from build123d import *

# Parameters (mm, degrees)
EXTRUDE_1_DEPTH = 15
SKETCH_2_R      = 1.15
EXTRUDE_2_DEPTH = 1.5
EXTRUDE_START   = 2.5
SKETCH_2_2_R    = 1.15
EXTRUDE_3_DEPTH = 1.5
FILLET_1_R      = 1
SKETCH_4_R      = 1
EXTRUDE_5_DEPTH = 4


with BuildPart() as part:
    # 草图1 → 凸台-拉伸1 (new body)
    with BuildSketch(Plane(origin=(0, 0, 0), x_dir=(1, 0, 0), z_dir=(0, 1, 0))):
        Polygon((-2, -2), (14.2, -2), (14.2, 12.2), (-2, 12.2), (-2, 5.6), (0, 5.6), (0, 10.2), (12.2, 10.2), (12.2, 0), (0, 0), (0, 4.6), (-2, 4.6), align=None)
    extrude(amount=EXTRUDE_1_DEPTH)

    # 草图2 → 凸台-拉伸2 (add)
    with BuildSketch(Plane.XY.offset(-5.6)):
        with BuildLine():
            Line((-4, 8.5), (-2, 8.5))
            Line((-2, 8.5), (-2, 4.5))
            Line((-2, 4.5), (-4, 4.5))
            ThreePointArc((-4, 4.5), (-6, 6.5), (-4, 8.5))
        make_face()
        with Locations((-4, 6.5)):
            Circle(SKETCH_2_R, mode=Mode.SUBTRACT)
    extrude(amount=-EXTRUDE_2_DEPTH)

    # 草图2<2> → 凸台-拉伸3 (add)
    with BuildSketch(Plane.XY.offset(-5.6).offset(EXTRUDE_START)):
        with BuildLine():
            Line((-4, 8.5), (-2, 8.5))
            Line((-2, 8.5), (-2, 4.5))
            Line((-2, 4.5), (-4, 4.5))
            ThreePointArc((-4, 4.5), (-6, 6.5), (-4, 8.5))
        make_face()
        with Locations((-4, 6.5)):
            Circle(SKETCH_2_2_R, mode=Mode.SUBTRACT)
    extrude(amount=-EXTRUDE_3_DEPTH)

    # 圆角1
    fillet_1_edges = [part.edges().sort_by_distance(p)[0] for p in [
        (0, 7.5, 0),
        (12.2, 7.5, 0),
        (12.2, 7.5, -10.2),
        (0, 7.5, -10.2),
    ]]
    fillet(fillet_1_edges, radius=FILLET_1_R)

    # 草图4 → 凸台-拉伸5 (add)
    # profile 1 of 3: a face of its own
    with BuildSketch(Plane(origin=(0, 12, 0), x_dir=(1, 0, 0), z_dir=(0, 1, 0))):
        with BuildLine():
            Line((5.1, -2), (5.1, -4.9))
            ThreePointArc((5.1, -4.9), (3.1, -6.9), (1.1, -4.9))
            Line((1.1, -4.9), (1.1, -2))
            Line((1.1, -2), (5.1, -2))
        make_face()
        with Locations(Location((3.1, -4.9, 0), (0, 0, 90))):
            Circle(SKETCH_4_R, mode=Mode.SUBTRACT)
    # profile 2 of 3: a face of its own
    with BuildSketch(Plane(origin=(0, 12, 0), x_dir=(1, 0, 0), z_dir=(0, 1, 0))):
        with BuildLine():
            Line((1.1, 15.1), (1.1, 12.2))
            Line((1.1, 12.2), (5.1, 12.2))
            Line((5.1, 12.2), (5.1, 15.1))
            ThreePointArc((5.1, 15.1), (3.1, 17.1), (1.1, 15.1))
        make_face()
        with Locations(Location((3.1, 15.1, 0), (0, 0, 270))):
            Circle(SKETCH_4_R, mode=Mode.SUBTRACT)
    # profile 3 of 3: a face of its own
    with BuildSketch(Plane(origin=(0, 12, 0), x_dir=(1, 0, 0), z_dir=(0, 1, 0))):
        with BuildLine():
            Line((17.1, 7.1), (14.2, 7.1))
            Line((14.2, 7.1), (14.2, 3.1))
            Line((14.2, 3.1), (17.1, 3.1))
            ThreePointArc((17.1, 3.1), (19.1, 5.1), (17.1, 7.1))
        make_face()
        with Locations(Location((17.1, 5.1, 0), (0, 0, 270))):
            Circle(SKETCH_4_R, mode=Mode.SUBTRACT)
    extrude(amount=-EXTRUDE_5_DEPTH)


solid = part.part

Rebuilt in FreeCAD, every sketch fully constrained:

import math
import FreeCAD as App
import Part
import Sketcher
from FreeCAD import Vector
Q = App.Units.Quantity


def edges_at(feature, points):
    """Names of the edges that pass closest to the given points."""
    edges = feature.Shape.Edges
    near = lambda p: min(range(len(edges)), key=lambda i: edges[i].distToShape(Part.Vertex(*p))[0])
    return sorted({f"Edge{near(p) + 1}" for p in points})


def add_polygon(sketch, points):
    """Adds a closed chain of lines whose ends are joined by coincident constraints."""
    first, n = sketch.GeometryCount, len(points)
    for a, b in zip(points, points[1:] + points[:1]):
        sketch.addGeometry(Part.LineSegment(App.Vector(*a, 0), App.Vector(*b, 0)), False)
    for i in range(n):
        sketch.addConstraint(Sketcher.Constraint("Coincident", first + i, 2, first + (i + 1) % n, 1))

doc = App.newDocument("Part")
params = doc.addObject("Spreadsheet::Sheet", "Params")
for row, (alias, value) in enumerate([
    ("sketch1_width", "2 mm"),
    ("sketch1_width2", "16.2 mm"),
    ("sketch1_width3", "12.2 mm"),
    ("sketch1_height", "14.2 mm"),
    ("sketch1_height2", "6.6 mm"),
    ("pad1_length", "15 mm"),
    ("sketch2_radius", "2 mm"),
    ("sketch2_diameter", "2.3 mm"),
    ("sketch2_width", "2 mm"),
    ("pad2_length", "1.5 mm"),
    ("sketch3_radius", "2 mm"),
    ("sketch3_diameter", "2.3 mm"),
    ("sketch3_width", "2 mm"),
    ("pad3_length", "1.5 mm"),
    ("fillet_radius", "1 mm"),
    ("sketch4_diameter", "2 mm"),
    ("sketch4_radius", "2 mm"),
    ("sketch4_width", "2.9 mm"),
    ("pad4_length", "4 mm"),
], start=1):
    params.set(f"A{row}", alias)
    params.set(f"B{row}", "=" + value)
    params.setAlias(f"B{row}", alias)

body = doc.addObject("PartDesign::Body", "Body")

# Sketch on XZ plane
sketch1 = body.newObject("Sketcher::SketchObject", "Sketch")
sketch1.AttachmentSupport = (doc.getObject("XZ_Plane"), [""])
sketch1.MapMode = "FlatFace"
add_polygon(sketch1, [(-2, 2), (14.2, 2), (14.2, -12.2), (-2, -12.2), (-2, -5.6), (0, -5.6), (0, -10.2), (12.2, -10.2), (12.2, 0), (0, 0), (0, -4.6), (-2, -4.6)])  # lines 0-11
sketch1.addConstraint([
    Sketcher.Constraint("Horizontal", 0),
    Sketcher.Constraint("Vertical", 1),
    Sketcher.Constraint("Horizontal", 2),
    Sketcher.Constraint("Vertical", 3),
    Sketcher.Constraint("Horizontal", 4),
    Sketcher.Constraint("Vertical", 5),
    Sketcher.Constraint("Horizontal", 6),
    Sketcher.Constraint("Vertical", 7),
    Sketcher.Constraint("Horizontal", 8),
    Sketcher.Constraint("Vertical", 9),
    Sketcher.Constraint("Horizontal", 10),
    Sketcher.Constraint("Vertical", 11),
    Sketcher.Constraint("Coincident", 8, 2, -1, 1),
    Sketcher.Constraint("PointOnObject", 4, 2, -2),
    Sketcher.Constraint("Vertical", 3, 2, 10, 2),
    Sketcher.Constraint("Equal", 5, 9),
    Sketcher.Constraint("Equal", 3, 11),
    Sketcher.Constraint("DistanceX", 4, 1, 4, 2, Q("2 mm")),
    Sketcher.Constraint("DistanceX", 0, 1, 0, 2, Q("16.2 mm")),
    Sketcher.Constraint("DistanceX", 6, 1, 6, 2, Q("12.2 mm")),
    Sketcher.Constraint("DistanceY", 1, 2, 1, 1, Q("14.2 mm")),
    Sketcher.Constraint("DistanceY", 3, 1, 3, 2, Q("6.6 mm")),
    Sketcher.Constraint("DistanceY", 5, 2, 5, 1, Q("4.6 mm")),
])
sketch1.setExpression("Constraints[29]", "Params.sketch1_width")
sketch1.setExpression("Constraints[30]", "Params.sketch1_width2")
sketch1.setExpression("Constraints[31]", "Params.sketch1_width3")
sketch1.setExpression("Constraints[32]", "Params.sketch1_height")
sketch1.setExpression("Constraints[33]", "Params.sketch1_height2")
pad1 = body.newObject("PartDesign::Pad", "Pad")
pad1.Profile = sketch1
pad1.setExpression("Length", "Params.pad1_length")
pad1.Reversed = True

# Sketch on XY plane
sketch2 = body.newObject("Sketcher::SketchObject", "Sketch001")
sketch2.AttachmentSupport = (doc.getObject("XY_Plane"), [""])
sketch2.MapMode = "FlatFace"
sketch2.AttachmentOffset = App.Placement(Vector(0, 0, -5.6), App.Rotation())
sketch2.addGeometry([
    Part.LineSegment(Vector(-2, 8.5, 0), Vector(-4, 8.5, 0)),  # 0
    Part.ArcOfCircle(Part.Circle(Vector(-4, 6.5, 0), Vector(0, 0, 1), 2), math.radians(90), math.radians(270)),  # 1
    Part.LineSegment(Vector(-4, 4.5, 0), Vector(-2, 4.5, 0)),  # 2
    Part.LineSegment(Vector(-2, 4.5, 0), Vector(-2, 8.5, 0)),  # 3
    Part.Circle(Vector(-4, 6.5, 0), Vector(0, 0, 1), 1.1),  # 4
], False)
sketch2.addConstraint([
    Sketcher.Constraint("Tangent", 0, 2, 1, 1),
    Sketcher.Constraint("Tangent", 1, 2, 2, 1),
    Sketcher.Constraint("Coincident", 2, 2, 3, 1),
    Sketcher.Constraint("Coincident", 3, 2, 0, 1),
    Sketcher.Constraint("Horizontal", 0),
    Sketcher.Constraint("Horizontal", 2),
    Sketcher.Constraint("Vertical", 3),
    Sketcher.Constraint("Coincident", 4, 3, 1, 3),
    Sketcher.Constraint("Radius", 1, Q("2 mm")),
    Sketcher.Constraint("Diameter", 4, Q("2.3 mm")),
    Sketcher.Constraint("DistanceX", 0, 2, 0, 1, Q("2 mm")),
    Sketcher.Constraint("DistanceX", 1, 3, -1, 1, Q("4 mm")),
    Sketcher.Constraint("DistanceY", -1, 1, 1, 3, Q("6.5 mm")),
])
sketch2.setExpression("Constraints[8]", "Params.sketch2_radius")
sketch2.setExpression("Constraints[9]", "Params.sketch2_diameter")
sketch2.setExpression("Constraints[10]", "Params.sketch2_width")
pad2 = body.newObject("PartDesign::Pad", "Pad001")
pad2.Profile = sketch2
pad2.setExpression("Length", "Params.pad2_length")
pad2.Reversed = True

# Sketch on XY plane
sketch3 = body.newObject("Sketcher::SketchObject", "Sketch002")
sketch3.AttachmentSupport = (doc.getObject("XY_Plane"), [""])
sketch3.MapMode = "FlatFace"
sketch3.AttachmentOffset = App.Placement(Vector(0, 0, -3.1), App.Rotation())
sketch3.addGeometry([
    Part.LineSegment(Vector(-2, 8.5, 0), Vector(-4, 8.5, 0)),  # 0
    Part.ArcOfCircle(Part.Circle(Vector(-4, 6.5, 0), Vector(0, 0, 1), 2), math.radians(90), math.radians(270)),  # 1
    Part.LineSegment(Vector(-4, 4.5, 0), Vector(-2, 4.5, 0)),  # 2
    Part.LineSegment(Vector(-2, 4.5, 0), Vector(-2, 8.5, 0)),  # 3
    Part.Circle(Vector(-4, 6.5, 0), Vector(0, 0, 1), 1.1),  # 4
], False)
sketch3.addConstraint([
    Sketcher.Constraint("Tangent", 0, 2, 1, 1),
    Sketcher.Constraint("Tangent", 1, 2, 2, 1),
    Sketcher.Constraint("Coincident", 2, 2, 3, 1),
    Sketcher.Constraint("Coincident", 3, 2, 0, 1),
    Sketcher.Constraint("Horizontal", 0),
    Sketcher.Constraint("Horizontal", 2),
    Sketcher.Constraint("Vertical", 3),
    Sketcher.Constraint("Coincident", 4, 3, 1, 3),
    Sketcher.Constraint("Radius", 1, Q("2 mm")),
    Sketcher.Constraint("Diameter", 4, Q("2.3 mm")),
    Sketcher.Constraint("DistanceX", 0, 2, 0, 1, Q("2 mm")),
    Sketcher.Constraint("DistanceX", 1, 3, -1, 1, Q("4 mm")),
    Sketcher.Constraint("DistanceY", -1, 1, 1, 3, Q("6.5 mm")),
])
sketch3.setExpression("Constraints[8]", "Params.sketch3_radius")
sketch3.setExpression("Constraints[9]", "Params.sketch3_diameter")
sketch3.setExpression("Constraints[10]", "Params.sketch3_width")
pad3 = body.newObject("PartDesign::Pad", "Pad002")
pad3.Profile = sketch3
pad3.setExpression("Length", "Params.pad3_length")
pad3.Reversed = True
doc.recompute()

fillet = body.newObject("PartDesign::Fillet", "Fillet")
fillet.Base = (pad3, edges_at(pad3, [
    (0, 7.5, 0),
    (12.2, 7.5, 0),
    (12.2, 7.5, -10.2),
    (0, 7.5, -10.2),
]))
fillet.setExpression("Radius", "Params.fillet_radius")

# Sketch on XZ plane
sketch4 = body.newObject("Sketcher::SketchObject", "Sketch003")
sketch4.AttachmentSupport = (doc.getObject("XZ_Plane"), [""])
sketch4.MapMode = "FlatFace"
sketch4.AttachmentOffset = App.Placement(Vector(0, 0, -12), App.Rotation())
sketch4.addGeometry([
    Part.LineSegment(Vector(5.1, 4.9, 0), Vector(5.1, 2, 0)),  # 0
    Part.LineSegment(Vector(5.1, 2, 0), Vector(1.1, 2, 0)),  # 1
    Part.LineSegment(Vector(1.1, 2, 0), Vector(1.1, 4.9, 0)),  # 2
    Part.ArcOfCircle(Part.Circle(Vector(3.1, 4.9, 0), Vector(0, 0, 1), 2), math.radians(0), math.radians(180)),  # 3
    Part.Circle(Vector(3.1, 4.9, 0), Vector(0, 0, 1), 1),  # 4
    Part.LineSegment(Vector(1.1, -15.1, 0), Vector(1.1, -12.2, 0)),  # 5
    Part.LineSegment(Vector(1.1, -12.2, 0), Vector(5.1, -12.2, 0)),  # 6
    Part.LineSegment(Vector(5.1, -12.2, 0), Vector(5.1, -15.1, 0)),  # 7
    Part.ArcOfCircle(Part.Circle(Vector(3.1, -15.1, 0), Vector(0, 0, 1), 2), math.radians(180), math.radians(360)),  # 8
    Part.Circle(Vector(3.1, -15.1, 0), Vector(0, 0, 1), 1),  # 9
    Part.LineSegment(Vector(17.1, -7.1, 0), Vector(14.2, -7.1, 0)),  # 10
    Part.LineSegment(Vector(14.2, -7.1, 0), Vector(14.2, -3.1, 0)),  # 11
    Part.LineSegment(Vector(14.2, -3.1, 0), Vector(17.1, -3.1, 0)),  # 12
    Part.ArcOfCircle(Part.Circle(Vector(17.1, -5.1, 0), Vector(0, 0, 1), 2), math.radians(-90), math.radians(90)),  # 13
    Part.Circle(Vector(17.1, -5.1, 0), Vector(0, 0, 1), 1),  # 14
], False)
sketch4.addConstraint([
    Sketcher.Constraint("Coincident", 0, 2, 1, 1),
    Sketcher.Constraint("Coincident", 1, 2, 2, 1),
    Sketcher.Constraint("Tangent", 2, 2, 3, 2),
    Sketcher.Constraint("Tangent", 3, 1, 0, 1),
    Sketcher.Constraint("Coincident", 5, 2, 6, 1),
    Sketcher.Constraint("Coincident", 6, 2, 7, 1),
    Sketcher.Constraint("Tangent", 7, 2, 8, 2),
    Sketcher.Constraint("Tangent", 8, 1, 5, 1),
    Sketcher.Constraint("Coincident", 10, 2, 11, 1),
    Sketcher.Constraint("Coincident", 11, 2, 12, 1),
    Sketcher.Constraint("Tangent", 12, 2, 13, 2),
    Sketcher.Constraint("Tangent", 13, 1, 10, 1),
    Sketcher.Constraint("Vertical", 0),
    Sketcher.Constraint("Horizontal", 1),
    Sketcher.Constraint("Vertical", 2),
    Sketcher.Constraint("Vertical", 5),
    Sketcher.Constraint("Horizontal", 6),
    Sketcher.Constraint("Vertical", 7),
    Sketcher.Constraint("Horizontal", 10),
    Sketcher.Constraint("Vertical", 11),
    Sketcher.Constraint("Horizontal", 12),
    Sketcher.Constraint("Coincident", 4, 3, 3, 3),
    Sketcher.Constraint("Coincident", 9, 3, 8, 3),
    Sketcher.Constraint("Coincident", 14, 3, 13, 3),
    Sketcher.Constraint("Equal", 3, 8),
    Sketcher.Constraint("Equal", 4, 9),
    Sketcher.Constraint("Equal", 8, 13),
    Sketcher.Constraint("Equal", 9, 14),
    Sketcher.Constraint("Vertical", 4, 3, 8, 3),
    Sketcher.Constraint("Equal", 12, 0),
    Sketcher.Constraint("Equal", 2, 5),
    Sketcher.Constraint("Diameter", 4, Q("2 mm")),
    Sketcher.Constraint("Radius", 3, Q("2 mm")),
    Sketcher.Constraint("DistanceX", 10, 2, 10, 1, Q("2.9 mm")),
    Sketcher.Constraint("DistanceY", -1, 1, 0, 2, Q("2 mm")),
    Sketcher.Constraint("DistanceY", 8, 3, 3, 3, Q("20 mm")),
    Sketcher.Constraint("DistanceX", 3, 3, 13, 3, Q("14 mm")),
    Sketcher.Constraint("DistanceY", 13, 3, 3, 3, Q("10 mm")),
    Sketcher.Constraint("DistanceX", -1, 1, 3, 3, Q("3.1 mm")),
])
sketch4.setExpression("Constraints[31]", "Params.sketch4_diameter")
sketch4.setExpression("Constraints[32]", "Params.sketch4_radius")
sketch4.setExpression("Constraints[33]", "Params.sketch4_width")
pad4 = body.newObject("PartDesign::Pad", "Pad003")
pad4.Profile = sketch4
pad4.setExpression("Length", "Params.pad4_length")

doc.recompute()
